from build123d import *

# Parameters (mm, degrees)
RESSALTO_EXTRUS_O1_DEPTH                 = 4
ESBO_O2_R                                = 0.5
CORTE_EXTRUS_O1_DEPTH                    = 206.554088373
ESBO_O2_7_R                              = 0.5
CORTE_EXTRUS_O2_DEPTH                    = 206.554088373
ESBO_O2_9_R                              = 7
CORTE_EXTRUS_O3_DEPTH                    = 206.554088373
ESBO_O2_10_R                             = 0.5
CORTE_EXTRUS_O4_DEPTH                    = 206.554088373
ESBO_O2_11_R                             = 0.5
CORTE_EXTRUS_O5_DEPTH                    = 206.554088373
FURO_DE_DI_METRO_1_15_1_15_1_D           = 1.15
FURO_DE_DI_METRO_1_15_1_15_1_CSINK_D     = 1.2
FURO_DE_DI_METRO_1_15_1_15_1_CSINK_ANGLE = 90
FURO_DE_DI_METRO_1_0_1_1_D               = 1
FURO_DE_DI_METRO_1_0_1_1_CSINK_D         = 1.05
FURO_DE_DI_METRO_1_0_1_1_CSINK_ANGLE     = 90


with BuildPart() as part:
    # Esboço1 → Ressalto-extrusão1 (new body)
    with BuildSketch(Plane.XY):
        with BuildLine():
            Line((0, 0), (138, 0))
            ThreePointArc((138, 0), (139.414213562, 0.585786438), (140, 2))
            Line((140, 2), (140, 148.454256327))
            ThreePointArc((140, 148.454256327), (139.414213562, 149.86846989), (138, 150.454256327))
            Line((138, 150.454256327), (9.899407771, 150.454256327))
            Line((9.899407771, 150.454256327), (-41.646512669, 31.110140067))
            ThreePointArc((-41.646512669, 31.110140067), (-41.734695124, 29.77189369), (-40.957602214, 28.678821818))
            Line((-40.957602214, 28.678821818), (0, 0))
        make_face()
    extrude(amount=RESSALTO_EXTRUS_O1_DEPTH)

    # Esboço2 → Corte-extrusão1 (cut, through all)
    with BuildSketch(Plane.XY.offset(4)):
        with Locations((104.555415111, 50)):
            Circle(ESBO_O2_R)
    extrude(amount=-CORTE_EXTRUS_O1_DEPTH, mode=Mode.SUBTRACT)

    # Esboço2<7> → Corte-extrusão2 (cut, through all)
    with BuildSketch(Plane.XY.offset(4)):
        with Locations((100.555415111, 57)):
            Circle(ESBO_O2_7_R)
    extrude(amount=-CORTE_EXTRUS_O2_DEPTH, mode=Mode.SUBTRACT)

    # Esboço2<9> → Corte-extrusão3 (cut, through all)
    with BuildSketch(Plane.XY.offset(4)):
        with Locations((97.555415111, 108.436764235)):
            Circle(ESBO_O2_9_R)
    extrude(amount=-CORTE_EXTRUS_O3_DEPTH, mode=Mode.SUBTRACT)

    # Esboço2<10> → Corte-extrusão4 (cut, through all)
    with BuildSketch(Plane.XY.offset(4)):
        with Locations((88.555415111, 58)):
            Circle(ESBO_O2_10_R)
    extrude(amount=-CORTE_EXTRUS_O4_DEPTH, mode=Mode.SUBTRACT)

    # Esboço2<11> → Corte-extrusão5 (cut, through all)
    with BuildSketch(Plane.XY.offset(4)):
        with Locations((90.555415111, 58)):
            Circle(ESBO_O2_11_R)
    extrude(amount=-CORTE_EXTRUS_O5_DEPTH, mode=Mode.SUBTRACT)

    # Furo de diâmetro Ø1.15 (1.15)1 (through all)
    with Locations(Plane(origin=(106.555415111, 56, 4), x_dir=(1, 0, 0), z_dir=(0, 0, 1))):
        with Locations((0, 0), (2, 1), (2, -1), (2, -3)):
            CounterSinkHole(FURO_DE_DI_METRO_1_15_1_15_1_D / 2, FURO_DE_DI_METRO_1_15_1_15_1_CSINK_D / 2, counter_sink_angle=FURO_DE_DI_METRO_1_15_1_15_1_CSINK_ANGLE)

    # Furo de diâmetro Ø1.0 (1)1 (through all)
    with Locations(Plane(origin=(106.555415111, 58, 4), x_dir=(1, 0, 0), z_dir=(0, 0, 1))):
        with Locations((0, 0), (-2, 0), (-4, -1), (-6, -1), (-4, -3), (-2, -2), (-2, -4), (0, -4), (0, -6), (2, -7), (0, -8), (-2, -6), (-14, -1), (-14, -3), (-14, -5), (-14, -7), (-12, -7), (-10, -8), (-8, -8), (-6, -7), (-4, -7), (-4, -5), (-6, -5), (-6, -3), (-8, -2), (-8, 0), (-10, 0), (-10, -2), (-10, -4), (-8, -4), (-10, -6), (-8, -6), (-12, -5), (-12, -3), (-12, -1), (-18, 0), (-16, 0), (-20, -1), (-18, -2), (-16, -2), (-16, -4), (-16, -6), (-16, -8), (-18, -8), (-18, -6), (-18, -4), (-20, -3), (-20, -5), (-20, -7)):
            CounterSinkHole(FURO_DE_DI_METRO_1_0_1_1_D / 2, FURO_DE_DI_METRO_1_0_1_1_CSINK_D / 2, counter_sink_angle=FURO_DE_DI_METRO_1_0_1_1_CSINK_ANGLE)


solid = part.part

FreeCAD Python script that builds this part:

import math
import FreeCAD as App
import Part
import Sketcher

V = App.Vector
Q = App.Units.Quantity

doc = App.newDocument("Part")
body = doc.addObject("PartDesign::Body", "Body")

# Sketch on XY plane
sketch1 = doc.addObject("Sketcher::SketchObject", "Sketch")
body.addObject(sketch1)
sketch1.AttachmentSupport = (doc.XY_Plane, [""])
sketch1.MapMode = "FlatFace"
sketch1.addGeometry(Part.LineSegment(V(0, 0, 0), V(138, 0, 0)), False)
sketch1.addGeometry(Part.ArcOfCircle(Part.Circle(V(138, 2, 0), V(0, 0, 1), 2), math.radians(-90), math.radians(0)), False)
sketch1.addGeometry(Part.LineSegment(V(140, 2, 0), V(140, 148.454256, 0)), False)
sketch1.addGeometry(Part.ArcOfCircle(Part.Circle(V(138, 148.454256, 0), V(0, 0, 1), 2), math.radians(0), math.radians(90)), False)
sketch1.addGeometry(Part.LineSegment(V(138, 150.454256, 0), V(9.899408, 150.454256, 0)), False)
sketch1.addGeometry(Part.LineSegment(V(9.899408, 150.454256, 0), V(-41.646513, 31.11014, 0)), False)
sketch1.addGeometry(Part.ArcOfCircle(Part.Circle(V(-39.810449, 30.317126, 0), V(0, 0, 1), 2), math.radians(156.64), math.radians(235)), False)
sketch1.addGeometry(Part.LineSegment(V(-40.957602, 28.678822, 0), V(0, 0, 0)), False)
sketch1.addConstraint(Sketcher.Constraint("Tangent", 0, 2, 1, 1))
sketch1.addConstraint(Sketcher.Constraint("Tangent", 1, 2, 2, 1))
sketch1.addConstraint(Sketcher.Constraint("Tangent", 2, 2, 3, 1))
sketch1.addConstraint(Sketcher.Constraint("Tangent", 3, 2, 4, 1))
sketch1.addConstraint(Sketcher.Constraint("Coincident", 4, 2, 5, 1))
sketch1.addConstraint(Sketcher.Constraint("Tangent", 5, 2, 6, 1))
sketch1.addConstraint(Sketcher.Constraint("Tangent", 6, 2, 7, 1))
sketch1.addConstraint(Sketcher.Constraint("Coincident", 7, 2, 0, 1))
sketch1.addConstraint(Sketcher.Constraint("Horizontal", 0))
sketch1.addConstraint(Sketcher.Constraint("Vertical", 2))
sketch1.addConstraint(Sketcher.Constraint("Horizontal", 4))
sketch1.addConstraint(Sketcher.Constraint("Coincident", 7, 2, -1, 1))
sketch1.addConstraint(Sketcher.Constraint("Equal", 1, 3))
sketch1.addConstraint(Sketcher.Constraint("Equal", 3, 6))
sketch1.addConstraint(Sketcher.Constraint("Radius", 1, Q("2 mm")))
sketch1.addConstraint(Sketcher.Constraint("DistanceX", 0, 1, 0, 2, Q("138 mm")))
sketch1.addConstraint(Sketcher.Constraint("Angle", 7, Q("-35 deg")))
sketch1.addConstraint(Sketcher.Constraint("Distance", 5, Q("130 mm")))
sketch1.addConstraint(Sketcher.Constraint("Distance", 7, Q("50 mm")))
sketch1.addConstraint(Sketcher.Constraint("Angle", 5, Q("-113.36 deg")))
pad1 = doc.addObject("PartDesign::Pad", "Pad")
body.addObject(pad1)
pad1.Profile = sketch1
pad1.Length = 4

# Sketch on XY plane
sketch2 = doc.addObject("Sketcher::SketchObject", "Sketch001")
body.addObject(sketch2)
sketch2.AttachmentSupport = (doc.XY_Plane, [""])
sketch2.MapMode = "FlatFace"
sketch2.AttachmentOffset = App.Placement(V(0, 0, 4), App.Rotation())
sketch2.addGeometry(Part.Circle(V(104.555415, 50, 0), V(0, 0, 1), 0.5), False)
sketch2.addConstraint(Sketcher.Constraint("Diameter", 0, Q("1 mm")))
sketch2.addConstraint(Sketcher.Constraint("DistanceY", -1, 1, 0, 3, Q("50 mm")))
sketch2.addConstraint(Sketcher.Constraint("DistanceX", -1, 1, 0, 3, Q("104.555415 mm")))
pocket1 = doc.addObject("PartDesign::Pocket", "Pocket")
body.addObject(pocket1)
pocket1.Profile = sketch2
pocket1.Type = "ThroughAll"

# Sketch on XY plane
sketch3 = doc.addObject("Sketcher::SketchObject", "Sketch002")
body.addObject(sketch3)
sketch3.AttachmentSupport = (doc.XY_Plane, [""])
sketch3.MapMode = "FlatFace"
sketch3.AttachmentOffset = App.Placement(V(0, 0, 4), App.Rotation())
sketch3.addGeometry(Part.Circle(V(100.555415, 57, 0), V(0, 0, 1), 0.5), False)
sketch3.addConstraint(Sketcher.Constraint("Diameter", 0, Q("1 mm")))
sketch3.addConstraint(Sketcher.Constraint("DistanceY", -1, 1, 0, 3, Q("57 mm")))
sketch3.addConstraint(Sketcher.Constraint("DistanceX", -1, 1, 0, 3, Q("100.555415 mm")))
pocket2 = doc.addObject("PartDesign::Pocket", "Pocket001")
body.addObject(pocket2)
pocket2.Profile = sketch3
pocket2.Type = "ThroughAll"

# Sketch on XY plane
sketch4 = doc.addObject("Sketcher::SketchObject", "Sketch003")
body.addObject(sketch4)
sketch4.AttachmentSupport = (doc.XY_Plane, [""])
sketch4.MapMode = "FlatFace"
sketch4.AttachmentOffset = App.Placement(V(0, 0, 4), App.Rotation())
sketch4.addGeometry(Part.Circle(V(97.555415, 108.436764, 0), V(0, 0, 1), 7), False)
sketch4.addConstraint(Sketcher.Constraint("Diameter", 0, Q("14 mm")))
sketch4.addConstraint(Sketcher.Constraint("DistanceX", -1, 1, 0, 3, Q("97.555415 mm")))
sketch4.addConstraint(Sketcher.Constraint("DistanceY", -1, 1, 0, 3, Q("108.436764 mm")))
pocket3 = doc.addObject("PartDesign::Pocket", "Pocket002")
body.addObject(pocket3)
pocket3.Profile = sketch4
pocket3.Type = "ThroughAll"

# Sketch on XY plane
sketch5 = doc.addObject("Sketcher::SketchObject", "Sketch004")
body.addObject(sketch5)
sketch5.AttachmentSupport = (doc.XY_Plane, [""])
sketch5.MapMode = "FlatFace"
sketch5.AttachmentOffset = App.Placement(V(0, 0, 4), App.Rotation())
sketch5.addGeometry(Part.Circle(V(88.555415, 58, 0), V(0, 0, 1), 0.5), False)
sketch5.addConstraint(Sketcher.Constraint("Diameter", 0, Q("1 mm")))
sketch5.addConstraint(Sketcher.Constraint("DistanceY", -1, 1, 0, 3, Q("58 mm")))
sketch5.addConstraint(Sketcher.Constraint("DistanceX", -1, 1, 0, 3, Q("88.555415 mm")))
pocket4 = doc.addObject("PartDesign::Pocket", "Pocket003")
body.addObject(pocket4)
pocket4.Profile = sketch5
pocket4.Type = "ThroughAll"

# Sketch on XY plane
sketch6 = doc.addObject("Sketcher::SketchObject", "Sketch005")
body.addObject(sketch6)
sketch6.AttachmentSupport = (doc.XY_Plane, [""])
sketch6.MapMode = "FlatFace"
sketch6.AttachmentOffset = App.Placement(V(0, 0, 4), App.Rotation())
sketch6.addGeometry(Part.Circle(V(90.555415, 58, 0), V(0, 0, 1), 0.5), False)
sketch6.addConstraint(Sketcher.Constraint("Diameter", 0, Q("1 mm")))
sketch6.addConstraint(Sketcher.Constraint("DistanceY", -1, 1, 0, 3, Q("58 mm")))
sketch6.addConstraint(Sketcher.Constraint("DistanceX", -1, 1, 0, 3, Q("90.555415 mm")))
pocket5 = doc.addObject("PartDesign::Pocket", "Pocket004")
body.addObject(pocket5)
pocket5.Profile = sketch6
pocket5.Type = "ThroughAll"

# Sketch on XY plane
sketch7 = doc.addObject("Sketcher::SketchObject", "Sketch006")
body.addObject(sketch7)
sketch7.AttachmentSupport = (doc.XY_Plane, [""])
sketch7.MapMode = "FlatFace"
sketch7.AttachmentOffset = App.Placement(V(0, 0, 4), App.Rotation())
sketch7.addGeometry(Part.Circle(V(106.555415, 56, 0), V(0, 0, 1), 0.575), False)
sketch7.addGeometry(Part.Circle(V(108.555415, 57, 0), V(0, 0, 1), 0.575), False)
sketch7.addGeometry(Part.Circle(V(108.555415, 55, 0), V(0, 0, 1), 0.575), False)
sketch7.addGeometry(Part.Circle(V(108.555415, 53, 0), V(0, 0, 1), 0.575), False)
sketch7.addConstraint(Sketcher.Constraint("Equal", 0, 1))
sketch7.addConstraint(Sketcher.Constraint("Equal", 1, 2))
sketch7.addConstraint(Sketcher.Constraint("Equal", 2, 3))
sketch7.addConstraint(Sketcher.Constraint("Vertical", 1, 3, 2, 3))
sketch7.addConstraint(Sketcher.Constraint("Vertical", 2, 3, 3, 3))
sketch7.addConstraint(Sketcher.Constraint("Diameter", 0, Q("1.15 mm")))
sketch7.addConstraint(Sketcher.Constraint("DistanceY", -1, 1, 0, 3, Q("56 mm")))
sketch7.addConstraint(Sketcher.Constraint("DistanceY", -1, 1, 1, 3, Q("57 mm")))
sketch7.addConstraint(Sketcher.Constraint("DistanceY", -1, 1, 2, 3, Q("55 mm")))
sketch7.addConstraint(Sketcher.Constraint("DistanceY", -1, 1, 3, 3, Q("53 mm")))
sketch7.addConstraint(Sketcher.Constraint("DistanceX", 0, 3, 1, 3, Q("2 mm")))
sketch7.addConstraint(Sketcher.Constraint("DistanceX", -1, 1, 0, 3, Q("106.555415 mm")))
doc.recompute()
hole = doc.addObject("PartDesign::Hole", "Hole")
body.addObject(hole)
hole.Profile = sketch7
hole.ThreadType = "None"
hole.Diameter = 1.15
hole.DepthType = "ThroughAll"
hole.HoleCutType = "Countersink"
hole.HoleCutDiameter = 1.2
hole.HoleCutCountersinkAngle = 90

# Sketch on XY plane
sketch8 = doc.addObject("Sketcher::SketchObject", "Sketch007")
body.addObject(sketch8)
sketch8.AttachmentSupport = (doc.XY_Plane, [""])
sketch8.MapMode = "FlatFace"
sketch8.AttachmentOffset = App.Placement(V(0, 0, 4), App.Rotation())
sketch8.addGeometry(Part.Circle(V(106.555415, 58, 0), V(0, 0, 1), 0.5), False)
sketch8.addGeometry(Part.Circle(V(104.555415, 58, 0), V(0, 0, 1), 0.5), False)
sketch8.addGeometry(Part.Circle(V(102.555415, 57, 0), V(0, 0, 1), 0.5), False)
sketch8.addGeometry(Part.Circle(V(100.555415, 57, 0), V(0, 0, 1), 0.5), False)
sketch8.addGeometry(Part.Circle(V(102.555415, 55, 0), V(0, 0, 1), 0.5), False)
sketch8.addGeometry(Part.Circle(V(104.555415, 56, 0), V(0, 0, 1), 0.5), False)
sketch8.addGeometry(Part.Circle(V(104.555415, 54, 0), V(0, 0, 1), 0.5), False)
sketch8.addGeometry(Part.Circle(V(106.555415, 54, 0), V(0, 0, 1), 0.5), False)
sketch8.addGeometry(Part.Circle(V(106.555415, 52, 0), V(0, 0, 1), 0.5), False)
sketch8.addGeometry(Part.Circle(V(108.555415, 51, 0), V(0, 0, 1), 0.5), False)
sketch8.addGeometry(Part.Circle(V(106.555415, 50, 0), V(0, 0, 1), 0.5), False)
sketch8.addGeometry(Part.Circle(V(104.555415, 52, 0), V(0, 0, 1), 0.5), False)
sketch8.addGeometry(Part.Circle(V(92.555415, 57, 0), V(0, 0, 1), 0.5), False)
sketch8.addGeometry(Part.Circle(V(92.555415, 55, 0), V(0, 0, 1), 0.5), False)
sketch8.addGeometry(Part.Circle(V(92.555415, 53, 0), V(0, 0, 1), 0.5), False)
sketch8.addGeometry(Part.Circle(V(92.555415, 51, 0), V(0, 0, 1), 0.5), False)
sketch8.addGeometry(Part.Circle(V(94.555415, 51, 0), V(0, 0, 1), 0.5), False)
sketch8.addGeometry(Part.Circle(V(96.555415, 50, 0), V(0, 0, 1), 0.5), False)
sketch8.addGeometry(Part.Circle(V(98.555415, 50, 0), V(0, 0, 1), 0.5), False)
sketch8.addGeometry(Part.Circle(V(100.555415, 51, 0), V(0, 0, 1), 0.5), False)
sketch8.addGeometry(Part.Circle(V(102.555415, 51, 0), V(0, 0, 1), 0.5), False)
sketch8.addGeometry(Part.Circle(V(102.555415, 53, 0), V(0, 0, 1), 0.5), False)
sketch8.addGeometry(Part.Circle(V(100.555415, 53, 0), V(0, 0, 1), 0.5), False)
sketch8.addGeometry(Part.Circle(V(100.555415, 55, 0), V(0, 0, 1), 0.5), False)
sketch8.addGeometry(Part.Circle(V(98.555415, 56, 0), V(0, 0, 1), 0.5), False)
sketch8.addGeometry(Part.Circle(V(98.555415, 58, 0), V(0, 0, 1), 0.5), False)
sketch8.addGeometry(Part.Circle(V(96.555415, 58, 0), V(0, 0, 1), 0.5), False)
sketch8.addGeometry(Part.Circle(V(96.555415, 56, 0), V(0, 0, 1), 0.5), False)
sketch8.addGeometry(Part.Circle(V(96.555415, 54, 0), V(0, 0, 1), 0.5), False)
sketch8.addGeometry(Part.Circle(V(98.555415, 54, 0), V(0, 0, 1), 0.5), False)
sketch8.addGeometry(Part.Circle(V(96.555415, 52, 0), V(0, 0, 1), 0.5), False)
sketch8.addGeometry(Part.Circle(V(98.555415, 52, 0), V(0, 0, 1), 0.5), False)
sketch8.addGeometry(Part.Circle(V(94.555415, 53, 0), V(0, 0, 1), 0.5), False)
sketch8.addGeometry(Part.Circle(V(94.555415, 55, 0), V(0, 0, 1), 0.5), False)
sketch8.addGeometry(Part.Circle(V(94.555415, 57, 0), V(0, 0, 1), 0.5), False)
sketch8.addGeometry(Part.Circle(V(88.555415, 58, 0), V(0, 0, 1), 0.5), False)
sketch8.addGeometry(Part.Circle(V(90.555415, 58, 0), V(0, 0, 1), 0.5), False)
sketch8.addGeometry(Part.Circle(V(86.555415, 57, 0), V(0, 0, 1), 0.5), False)
sketch8.addGeometry(Part.Circle(V(88.555415, 56, 0), V(0, 0, 1), 0.5), False)
sketch8.addGeometry(Part.Circle(V(90.555415, 56, 0), V(0, 0, 1), 0.5), False)
sketch8.addGeometry(Part.Circle(V(90.555415, 54, 0), V(0, 0, 1), 0.5), False)
sketch8.addGeometry(Part.Circle(V(90.555415, 52, 0), V(0, 0, 1), 0.5), False)
sketch8.addGeometry(Part.Circle(V(90.555415, 50, 0), V(0, 0, 1), 0.5), False)
sketch8.addGeometry(Part.Circle(V(88.555415, 50, 0), V(0, 0, 1), 0.5), False)
sketch8.addGeometry(Part.Circle(V(88.555415, 52, 0), V(0, 0, 1), 0.5), False)
sketch8.addGeometry(Part.Circle(V(88.555415, 54, 0), V(0, 0, 1), 0.5), False)
sketch8.addGeometry(Part.Circle(V(86.555415, 55, 0), V(0, 0, 1), 0.5), False)
sketch8.addGeometry(Part.Circle(V(86.555415, 53, 0), V(0, 0, 1), 0.5), False)
sketch8.addGeometry(Part.Circle(V(86.555415, 51, 0), V(0, 0, 1), 0.5), False)
sketch8.addConstraint(Sketcher.Constraint("Equal", 0, 1))
sketch8.addConstraint(Sketcher.Constraint("Equal", 1, 2))
sketch8.addConstraint(Sketcher.Constraint("Equal", 2, 3))
sketch8.addConstraint(Sketcher.Constraint("Equal", 3, 4))
sketch8.addConstraint(Sketcher.Constraint("Equal", 4, 5))
sketch8.addConstraint(Sketcher.Constraint("Equal", 5, 6))
sketch8.addConstraint(Sketcher.Constraint("Equal", 6, 7))
sketch8.addConstraint(Sketcher.Constraint("Equal", 7, 8))
sketch8.addConstraint(Sketcher.Constraint("Equal", 8, 9))
sketch8.addConstraint(Sketcher.Constraint("Equal", 9, 10))
sketch8.addConstraint(Sketcher.Constraint("Equal", 10, 11))
sketch8.addConstraint(Sketcher.Constraint("Equal", 11, 12))
sketch8.addConstraint(Sketcher.Constraint("Equal", 12, 13))
sketch8.addConstraint(Sketcher.Constraint("Equal", 13, 14))
sketch8.addConstraint(Sketcher.Constraint("Equal", 14, 15))
sketch8.addConstraint(Sketcher.Constraint("Equal", 15, 16))
sketch8.addConstraint(Sketcher.Constraint("Equal", 16, 17))
sketch8.addConstraint(Sketcher.Constraint("Equal", 17, 18))
sketch8.addConstraint(Sketcher.Constraint("Equal", 18, 19))
sketch8.addConstraint(Sketcher.Constraint("Equal", 19, 20))
sketch8.addConstraint(Sketcher.Constraint("Equal", 20, 21))
sketch8.addConstraint(Sketcher.Constraint("Equal", 21, 22))
sketch8.addConstraint(Sketcher.Constraint("Equal", 22, 23))
sketch8.addConstraint(Sketcher.Constraint("Equal", 23, 24))
sketch8.addConstraint(Sketcher.Constraint("Equal", 24, 25))
sketch8.addConstraint(Sketcher.Constraint("Equal", 25, 26))
sketch8.addConstraint(Sketcher.Constraint("Equal", 26, 27))
sketch8.addConstraint(Sketcher.Constraint("Equal", 27, 28))
sketch8.addConstraint(Sketcher.Constraint("Equal", 28, 29))
sketch8.addConstraint(Sketcher.Constraint("Equal", 29, 30))
sketch8.addConstraint(Sketcher.Constraint("Equal", 30, 31))
sketch8.addConstraint(Sketcher.Constraint("Equal", 31, 32))
sketch8.addConstraint(Sketcher.Constraint("Equal", 32, 33))
sketch8.addConstraint(Sketcher.Constraint("Equal", 33, 34))
sketch8.addConstraint(Sketcher.Constraint("Equal", 34, 35))
sketch8.addConstraint(Sketcher.Constraint("Equal", 35, 36))
sketch8.addConstraint(Sketcher.Constraint("Equal", 36, 37))
sketch8.addConstraint(Sketcher.Constraint("Equal", 37, 38))
sketch8.addConstraint(Sketcher.Constraint("Equal", 38, 39))
sketch8.addConstraint(Sketcher.Constraint("Equal", 39, 40))
sketch8.addConstraint(Sketcher.Constraint("Equal", 40, 41))
sketch8.addConstraint(Sketcher.Constraint("Equal", 41, 42))
sketch8.addConstraint(Sketcher.Constraint("Equal", 42, 43))
sketch8.addConstraint(Sketcher.Constraint("Equal", 43, 44))
sketch8.addConstraint(Sketcher.Constraint("Equal", 44, 45))
sketch8.addConstraint(Sketcher.Constraint("Equal", 45, 46))
sketch8.addConstraint(Sketcher.Constraint("Equal", 46, 47))
sketch8.addConstraint(Sketcher.Constraint("Equal", 47, 48))
sketch8.addConstraint(Sketcher.Constraint("Horizontal", 0, 3, 1, 3))
sketch8.addConstraint(Sketcher.Constraint("Horizontal", 2, 3, 3, 3))
sketch8.addConstraint(Sketcher.Constraint("Horizontal", 6, 3, 7, 3))
sketch8.addConstraint(Sketcher.Constraint("Horizontal", 8, 3, 11, 3))
sketch8.addConstraint(Sketcher.Constraint("Horizontal", 3, 3, 12, 3))
sketch8.addConstraint(Sketcher.Constraint("Horizontal", 4, 3, 13, 3))
sketch8.addConstraint(Sketcher.Constraint("Horizontal", 9, 3, 15, 3))
sketch8.addConstraint(Sketcher.Constraint("Horizontal", 15, 3, 16, 3))
sketch8.addConstraint(Sketcher.Constraint("Horizontal", 10, 3, 17, 3))
sketch8.addConstraint(Sketcher.Constraint("Horizontal", 17, 3, 18, 3))
sketch8.addConstraint(Sketcher.Constraint("Horizontal", 16, 3, 19, 3))
sketch8.addConstraint(Sketcher.Constraint("Horizontal", 19, 3, 20, 3))
sketch8.addConstraint(Sketcher.Constraint("Horizontal", 14, 3, 21, 3))
sketch8.addConstraint(Sketcher.Constraint("Horizontal", 21, 3, 22, 3))
sketch8.addConstraint(Sketcher.Constraint("Horizontal", 13, 3, 23, 3))
sketch8.addConstraint(Sketcher.Constraint("Horizontal", 5, 3, 24, 3))
sketch8.addConstraint(Sketcher.Constraint("Horizontal", 1, 3, 25, 3))
sketch8.addConstraint(Sketcher.Constraint("Horizontal", 25, 3, 26, 3))
sketch8.addConstraint(Sketcher.Constraint("Horizontal", 24, 3, 27, 3))
sketch8.addConstraint(Sketcher.Constraint("Horizontal", 7, 3, 28, 3))
sketch8.addConstraint(Sketcher.Constraint("Horizontal", 28, 3, 29, 3))
sketch8.addConstraint(Sketcher.Constraint("Horizontal", 11, 3, 30, 3))
sketch8.addConstraint(Sketcher.Constraint("Horizontal", 30, 3, 31, 3))
sketch8.addConstraint(Sketcher.Constraint("Horizontal", 22, 3, 32, 3))
sketch8.addConstraint(Sketcher.Constraint("Horizontal", 23, 3, 33, 3))
sketch8.addConstraint(Sketcher.Constraint("Horizontal", 12, 3, 34, 3))
sketch8.addConstraint(Sketcher.Constraint("Horizontal", 26, 3, 35, 3))
sketch8.addConstraint(Sketcher.Constraint("Horizontal", 35, 3, 36, 3))
sketch8.addConstraint(Sketcher.Constraint("Horizontal", 34, 3, 37, 3))
sketch8.addConstraint(Sketcher.Constraint("Horizontal", 27, 3, 38, 3))
sketch8.addConstraint(Sketcher.Constraint("Horizontal", 38, 3, 39, 3))
sketch8.addConstraint(Sketcher.Constraint("Horizontal", 29, 3, 40, 3))
sketch8.addConstraint(Sketcher.Constraint("Horizontal", 31, 3, 41, 3))
sketch8.addConstraint(Sketcher.Constraint("Horizontal", 18, 3, 42, 3))
sketch8.addConstraint(Sketcher.Constraint("Horizontal", 42, 3, 43, 3))
sketch8.addConstraint(Sketcher.Constraint("Horizontal", 41, 3, 44, 3))
sketch8.addConstraint(Sketcher.Constraint("Horizontal", 40, 3, 45, 3))
sketch8.addConstraint(Sketcher.Constraint("Horizontal", 33, 3, 46, 3))
sketch8.addConstraint(Sketcher.Constraint("Horizontal", 32, 3, 47, 3))
sketch8.addConstraint(Sketcher.Constraint("Horizontal", 20, 3, 48, 3))
sketch8.addConstraint(Sketcher.Constraint("Vertical", 2, 3, 4, 3))
sketch8.addConstraint(Sketcher.Constraint("Vertical", 1, 3, 5, 3))
sketch8.addConstraint(Sketcher.Constraint("Vertical", 5, 3, 6, 3))
sketch8.addConstraint(Sketcher.Constraint("Vertical", 0, 3, 7, 3))
sketch8.addConstraint(Sketcher.Constraint("Vertical", 7, 3, 8, 3))
sketch8.addConstraint(Sketcher.Constraint("Vertical", 8, 3, 10, 3))
sketch8.addConstraint(Sketcher.Constraint("Vertical", 6, 3, 11, 3))
sketch8.addConstraint(Sketcher.Constraint("Vertical", 12, 3, 13, 3))
sketch8.addConstraint(Sketcher.Constraint("Vertical", 13, 3, 14, 3))
sketch8.addConstraint(Sketcher.Constraint("Vertical", 14, 3, 15, 3))
sketch8.addConstraint(Sketcher.Constraint("Vertical", 3, 3, 19, 3))
sketch8.addConstraint(Sketcher.Constraint("Vertical", 4, 3, 20, 3))
sketch8.addConstraint(Sketcher.Constraint("Vertical", 20, 3, 21, 3))
sketch8.addConstraint(Sketcher.Constraint("Vertical", 19, 3, 22, 3))
sketch8.addConstraint(Sketcher.Constraint("Vertical", 22, 3, 23, 3))
sketch8.addConstraint(Sketcher.Constraint("Vertical", 18, 3, 24, 3))
sketch8.addConstraint(Sketcher.Constraint("Vertical", 24, 3, 25, 3))
sketch8.addConstraint(Sketcher.Constraint("Vertical", 17, 3, 26, 3))
sketch8.addConstraint(Sketcher.Constraint("Vertical", 26, 3, 27, 3))
sketch8.addConstraint(Sketcher.Constraint("Vertical", 27, 3, 28, 3))
sketch8.addConstraint(Sketcher.Constraint("Vertical", 25, 3, 29, 3))
sketch8.addConstraint(Sketcher.Constraint("Vertical", 28, 3, 30, 3))
sketch8.addConstraint(Sketcher.Constraint("Vertical", 29, 3, 31, 3))
sketch8.addConstraint(Sketcher.Constraint("Vertical", 16, 3, 32, 3))
sketch8.addConstraint(Sketcher.Constraint("Vertical", 32, 3, 33, 3))
sketch8.addConstraint(Sketcher.Constraint("Vertical", 33, 3, 34, 3))
sketch8.addConstraint(Sketcher.Constraint("Vertical", 35, 3, 38, 3))
sketch8.addConstraint(Sketcher.Constraint("Vertical", 36, 3, 39, 3))
sketch8.addConstraint(Sketcher.Constraint("Vertical", 39, 3, 40, 3))
sketch8.addConstraint(Sketcher.Constraint("Vertical", 40, 3, 41, 3))
sketch8.addConstraint(Sketcher.Constraint("Vertical", 41, 3, 42, 3))
sketch8.addConstraint(Sketcher.Constraint("Vertical", 38, 3, 43, 3))
sketch8.addConstraint(Sketcher.Constraint("Vertical", 43, 3, 44, 3))
sketch8.addConstraint(Sketcher.Constraint("Vertical", 44, 3, 45, 3))
sketch8.addConstraint(Sketcher.Constraint("Vertical", 37, 3, 46, 3))
sketch8.addConstraint(Sketcher.Constraint("Vertical", 46, 3, 47, 3))
sketch8.addConstraint(Sketcher.Constraint("Vertical", 47, 3, 48, 3))
sketch8.addConstraint(Sketcher.Constraint("Diameter", 0, Q("1 mm")))
sketch8.addConstraint(Sketcher.Constraint("DistanceY", -1, 1, 0, 3, Q("58 mm")))
sketch8.addConstraint(Sketcher.Constraint("DistanceY", -1, 1, 2, 3, Q("57 mm")))
sketch8.addConstraint(Sketcher.Constraint("DistanceY", -1, 1, 4, 3, Q("55 mm")))
sketch8.addConstraint(Sketcher.Constraint("DistanceY", -1, 1, 5, 3, Q("56 mm")))
sketch8.addConstraint(Sketcher.Constraint("DistanceY", -1, 1, 6, 3, Q("54 mm")))
sketch8.addConstraint(Sketcher.Constraint("DistanceY", -1, 1, 8, 3, Q("52 mm")))
sketch8.addConstraint(Sketcher.Constraint("DistanceY", -1, 1, 9, 3, Q("51 mm")))
sketch8.addConstraint(Sketcher.Constraint("DistanceY", -1, 1, 10, 3, Q("50 mm")))
sketch8.addConstraint(Sketcher.Constraint("DistanceY", -1, 1, 14, 3, Q("53 mm")))
sketch8.addConstraint(Sketcher.Constraint("DistanceX", 1, 3, 0, 3, Q("2 mm")))
sketch8.addConstraint(Sketcher.Constraint("DistanceX", 2, 3, 1, 3, Q("2 mm")))
sketch8.addConstraint(Sketcher.Constraint("DistanceX", 3, 3, 2, 3, Q("2 mm")))
sketch8.addConstraint(Sketcher.Constraint("DistanceX", 8, 3, 9, 3, Q("2 mm")))
sketch8.addConstraint(Sketcher.Constraint("DistanceX", 12, 3, 3, 3, Q("8 mm")))
sketch8.addConstraint(Sketcher.Constraint("DistanceX", 15, 3, 16, 3, Q("2 mm")))
sketch8.addConstraint(Sketcher.Constraint("DistanceX", 16, 3, 17, 3, Q("2 mm")))
sketch8.addConstraint(Sketcher.Constraint("DistanceX", 17, 3, 18, 3, Q("2 mm")))
sketch8.addConstraint(Sketcher.Constraint("DistanceX", 35, 3, 12, 3, Q("4 mm")))
sketch8.addConstraint(Sketcher.Constraint("DistanceX", 35, 3, 36, 3, Q("2 mm")))
sketch8.addConstraint(Sketcher.Constraint("DistanceX", 37, 3, 35, 3, Q("2 mm")))
sketch8.addConstraint(Sketcher.Constraint("DistanceX", -1, 1, 0, 3, Q("106.555415 mm")))
doc.recompute()
hole2 = doc.addObject("PartDesign::Hole", "Hole001")
body.addObject(hole2)
hole2.Profile = sketch8
hole2.ThreadType = "None"
hole2.Diameter = 1
hole2.DepthType = "ThroughAll"
hole2.HoleCutType = "Countersink"
hole2.HoleCutDiameter = 1.05
hole2.HoleCutCountersinkAngle = 90

doc.recompute()
